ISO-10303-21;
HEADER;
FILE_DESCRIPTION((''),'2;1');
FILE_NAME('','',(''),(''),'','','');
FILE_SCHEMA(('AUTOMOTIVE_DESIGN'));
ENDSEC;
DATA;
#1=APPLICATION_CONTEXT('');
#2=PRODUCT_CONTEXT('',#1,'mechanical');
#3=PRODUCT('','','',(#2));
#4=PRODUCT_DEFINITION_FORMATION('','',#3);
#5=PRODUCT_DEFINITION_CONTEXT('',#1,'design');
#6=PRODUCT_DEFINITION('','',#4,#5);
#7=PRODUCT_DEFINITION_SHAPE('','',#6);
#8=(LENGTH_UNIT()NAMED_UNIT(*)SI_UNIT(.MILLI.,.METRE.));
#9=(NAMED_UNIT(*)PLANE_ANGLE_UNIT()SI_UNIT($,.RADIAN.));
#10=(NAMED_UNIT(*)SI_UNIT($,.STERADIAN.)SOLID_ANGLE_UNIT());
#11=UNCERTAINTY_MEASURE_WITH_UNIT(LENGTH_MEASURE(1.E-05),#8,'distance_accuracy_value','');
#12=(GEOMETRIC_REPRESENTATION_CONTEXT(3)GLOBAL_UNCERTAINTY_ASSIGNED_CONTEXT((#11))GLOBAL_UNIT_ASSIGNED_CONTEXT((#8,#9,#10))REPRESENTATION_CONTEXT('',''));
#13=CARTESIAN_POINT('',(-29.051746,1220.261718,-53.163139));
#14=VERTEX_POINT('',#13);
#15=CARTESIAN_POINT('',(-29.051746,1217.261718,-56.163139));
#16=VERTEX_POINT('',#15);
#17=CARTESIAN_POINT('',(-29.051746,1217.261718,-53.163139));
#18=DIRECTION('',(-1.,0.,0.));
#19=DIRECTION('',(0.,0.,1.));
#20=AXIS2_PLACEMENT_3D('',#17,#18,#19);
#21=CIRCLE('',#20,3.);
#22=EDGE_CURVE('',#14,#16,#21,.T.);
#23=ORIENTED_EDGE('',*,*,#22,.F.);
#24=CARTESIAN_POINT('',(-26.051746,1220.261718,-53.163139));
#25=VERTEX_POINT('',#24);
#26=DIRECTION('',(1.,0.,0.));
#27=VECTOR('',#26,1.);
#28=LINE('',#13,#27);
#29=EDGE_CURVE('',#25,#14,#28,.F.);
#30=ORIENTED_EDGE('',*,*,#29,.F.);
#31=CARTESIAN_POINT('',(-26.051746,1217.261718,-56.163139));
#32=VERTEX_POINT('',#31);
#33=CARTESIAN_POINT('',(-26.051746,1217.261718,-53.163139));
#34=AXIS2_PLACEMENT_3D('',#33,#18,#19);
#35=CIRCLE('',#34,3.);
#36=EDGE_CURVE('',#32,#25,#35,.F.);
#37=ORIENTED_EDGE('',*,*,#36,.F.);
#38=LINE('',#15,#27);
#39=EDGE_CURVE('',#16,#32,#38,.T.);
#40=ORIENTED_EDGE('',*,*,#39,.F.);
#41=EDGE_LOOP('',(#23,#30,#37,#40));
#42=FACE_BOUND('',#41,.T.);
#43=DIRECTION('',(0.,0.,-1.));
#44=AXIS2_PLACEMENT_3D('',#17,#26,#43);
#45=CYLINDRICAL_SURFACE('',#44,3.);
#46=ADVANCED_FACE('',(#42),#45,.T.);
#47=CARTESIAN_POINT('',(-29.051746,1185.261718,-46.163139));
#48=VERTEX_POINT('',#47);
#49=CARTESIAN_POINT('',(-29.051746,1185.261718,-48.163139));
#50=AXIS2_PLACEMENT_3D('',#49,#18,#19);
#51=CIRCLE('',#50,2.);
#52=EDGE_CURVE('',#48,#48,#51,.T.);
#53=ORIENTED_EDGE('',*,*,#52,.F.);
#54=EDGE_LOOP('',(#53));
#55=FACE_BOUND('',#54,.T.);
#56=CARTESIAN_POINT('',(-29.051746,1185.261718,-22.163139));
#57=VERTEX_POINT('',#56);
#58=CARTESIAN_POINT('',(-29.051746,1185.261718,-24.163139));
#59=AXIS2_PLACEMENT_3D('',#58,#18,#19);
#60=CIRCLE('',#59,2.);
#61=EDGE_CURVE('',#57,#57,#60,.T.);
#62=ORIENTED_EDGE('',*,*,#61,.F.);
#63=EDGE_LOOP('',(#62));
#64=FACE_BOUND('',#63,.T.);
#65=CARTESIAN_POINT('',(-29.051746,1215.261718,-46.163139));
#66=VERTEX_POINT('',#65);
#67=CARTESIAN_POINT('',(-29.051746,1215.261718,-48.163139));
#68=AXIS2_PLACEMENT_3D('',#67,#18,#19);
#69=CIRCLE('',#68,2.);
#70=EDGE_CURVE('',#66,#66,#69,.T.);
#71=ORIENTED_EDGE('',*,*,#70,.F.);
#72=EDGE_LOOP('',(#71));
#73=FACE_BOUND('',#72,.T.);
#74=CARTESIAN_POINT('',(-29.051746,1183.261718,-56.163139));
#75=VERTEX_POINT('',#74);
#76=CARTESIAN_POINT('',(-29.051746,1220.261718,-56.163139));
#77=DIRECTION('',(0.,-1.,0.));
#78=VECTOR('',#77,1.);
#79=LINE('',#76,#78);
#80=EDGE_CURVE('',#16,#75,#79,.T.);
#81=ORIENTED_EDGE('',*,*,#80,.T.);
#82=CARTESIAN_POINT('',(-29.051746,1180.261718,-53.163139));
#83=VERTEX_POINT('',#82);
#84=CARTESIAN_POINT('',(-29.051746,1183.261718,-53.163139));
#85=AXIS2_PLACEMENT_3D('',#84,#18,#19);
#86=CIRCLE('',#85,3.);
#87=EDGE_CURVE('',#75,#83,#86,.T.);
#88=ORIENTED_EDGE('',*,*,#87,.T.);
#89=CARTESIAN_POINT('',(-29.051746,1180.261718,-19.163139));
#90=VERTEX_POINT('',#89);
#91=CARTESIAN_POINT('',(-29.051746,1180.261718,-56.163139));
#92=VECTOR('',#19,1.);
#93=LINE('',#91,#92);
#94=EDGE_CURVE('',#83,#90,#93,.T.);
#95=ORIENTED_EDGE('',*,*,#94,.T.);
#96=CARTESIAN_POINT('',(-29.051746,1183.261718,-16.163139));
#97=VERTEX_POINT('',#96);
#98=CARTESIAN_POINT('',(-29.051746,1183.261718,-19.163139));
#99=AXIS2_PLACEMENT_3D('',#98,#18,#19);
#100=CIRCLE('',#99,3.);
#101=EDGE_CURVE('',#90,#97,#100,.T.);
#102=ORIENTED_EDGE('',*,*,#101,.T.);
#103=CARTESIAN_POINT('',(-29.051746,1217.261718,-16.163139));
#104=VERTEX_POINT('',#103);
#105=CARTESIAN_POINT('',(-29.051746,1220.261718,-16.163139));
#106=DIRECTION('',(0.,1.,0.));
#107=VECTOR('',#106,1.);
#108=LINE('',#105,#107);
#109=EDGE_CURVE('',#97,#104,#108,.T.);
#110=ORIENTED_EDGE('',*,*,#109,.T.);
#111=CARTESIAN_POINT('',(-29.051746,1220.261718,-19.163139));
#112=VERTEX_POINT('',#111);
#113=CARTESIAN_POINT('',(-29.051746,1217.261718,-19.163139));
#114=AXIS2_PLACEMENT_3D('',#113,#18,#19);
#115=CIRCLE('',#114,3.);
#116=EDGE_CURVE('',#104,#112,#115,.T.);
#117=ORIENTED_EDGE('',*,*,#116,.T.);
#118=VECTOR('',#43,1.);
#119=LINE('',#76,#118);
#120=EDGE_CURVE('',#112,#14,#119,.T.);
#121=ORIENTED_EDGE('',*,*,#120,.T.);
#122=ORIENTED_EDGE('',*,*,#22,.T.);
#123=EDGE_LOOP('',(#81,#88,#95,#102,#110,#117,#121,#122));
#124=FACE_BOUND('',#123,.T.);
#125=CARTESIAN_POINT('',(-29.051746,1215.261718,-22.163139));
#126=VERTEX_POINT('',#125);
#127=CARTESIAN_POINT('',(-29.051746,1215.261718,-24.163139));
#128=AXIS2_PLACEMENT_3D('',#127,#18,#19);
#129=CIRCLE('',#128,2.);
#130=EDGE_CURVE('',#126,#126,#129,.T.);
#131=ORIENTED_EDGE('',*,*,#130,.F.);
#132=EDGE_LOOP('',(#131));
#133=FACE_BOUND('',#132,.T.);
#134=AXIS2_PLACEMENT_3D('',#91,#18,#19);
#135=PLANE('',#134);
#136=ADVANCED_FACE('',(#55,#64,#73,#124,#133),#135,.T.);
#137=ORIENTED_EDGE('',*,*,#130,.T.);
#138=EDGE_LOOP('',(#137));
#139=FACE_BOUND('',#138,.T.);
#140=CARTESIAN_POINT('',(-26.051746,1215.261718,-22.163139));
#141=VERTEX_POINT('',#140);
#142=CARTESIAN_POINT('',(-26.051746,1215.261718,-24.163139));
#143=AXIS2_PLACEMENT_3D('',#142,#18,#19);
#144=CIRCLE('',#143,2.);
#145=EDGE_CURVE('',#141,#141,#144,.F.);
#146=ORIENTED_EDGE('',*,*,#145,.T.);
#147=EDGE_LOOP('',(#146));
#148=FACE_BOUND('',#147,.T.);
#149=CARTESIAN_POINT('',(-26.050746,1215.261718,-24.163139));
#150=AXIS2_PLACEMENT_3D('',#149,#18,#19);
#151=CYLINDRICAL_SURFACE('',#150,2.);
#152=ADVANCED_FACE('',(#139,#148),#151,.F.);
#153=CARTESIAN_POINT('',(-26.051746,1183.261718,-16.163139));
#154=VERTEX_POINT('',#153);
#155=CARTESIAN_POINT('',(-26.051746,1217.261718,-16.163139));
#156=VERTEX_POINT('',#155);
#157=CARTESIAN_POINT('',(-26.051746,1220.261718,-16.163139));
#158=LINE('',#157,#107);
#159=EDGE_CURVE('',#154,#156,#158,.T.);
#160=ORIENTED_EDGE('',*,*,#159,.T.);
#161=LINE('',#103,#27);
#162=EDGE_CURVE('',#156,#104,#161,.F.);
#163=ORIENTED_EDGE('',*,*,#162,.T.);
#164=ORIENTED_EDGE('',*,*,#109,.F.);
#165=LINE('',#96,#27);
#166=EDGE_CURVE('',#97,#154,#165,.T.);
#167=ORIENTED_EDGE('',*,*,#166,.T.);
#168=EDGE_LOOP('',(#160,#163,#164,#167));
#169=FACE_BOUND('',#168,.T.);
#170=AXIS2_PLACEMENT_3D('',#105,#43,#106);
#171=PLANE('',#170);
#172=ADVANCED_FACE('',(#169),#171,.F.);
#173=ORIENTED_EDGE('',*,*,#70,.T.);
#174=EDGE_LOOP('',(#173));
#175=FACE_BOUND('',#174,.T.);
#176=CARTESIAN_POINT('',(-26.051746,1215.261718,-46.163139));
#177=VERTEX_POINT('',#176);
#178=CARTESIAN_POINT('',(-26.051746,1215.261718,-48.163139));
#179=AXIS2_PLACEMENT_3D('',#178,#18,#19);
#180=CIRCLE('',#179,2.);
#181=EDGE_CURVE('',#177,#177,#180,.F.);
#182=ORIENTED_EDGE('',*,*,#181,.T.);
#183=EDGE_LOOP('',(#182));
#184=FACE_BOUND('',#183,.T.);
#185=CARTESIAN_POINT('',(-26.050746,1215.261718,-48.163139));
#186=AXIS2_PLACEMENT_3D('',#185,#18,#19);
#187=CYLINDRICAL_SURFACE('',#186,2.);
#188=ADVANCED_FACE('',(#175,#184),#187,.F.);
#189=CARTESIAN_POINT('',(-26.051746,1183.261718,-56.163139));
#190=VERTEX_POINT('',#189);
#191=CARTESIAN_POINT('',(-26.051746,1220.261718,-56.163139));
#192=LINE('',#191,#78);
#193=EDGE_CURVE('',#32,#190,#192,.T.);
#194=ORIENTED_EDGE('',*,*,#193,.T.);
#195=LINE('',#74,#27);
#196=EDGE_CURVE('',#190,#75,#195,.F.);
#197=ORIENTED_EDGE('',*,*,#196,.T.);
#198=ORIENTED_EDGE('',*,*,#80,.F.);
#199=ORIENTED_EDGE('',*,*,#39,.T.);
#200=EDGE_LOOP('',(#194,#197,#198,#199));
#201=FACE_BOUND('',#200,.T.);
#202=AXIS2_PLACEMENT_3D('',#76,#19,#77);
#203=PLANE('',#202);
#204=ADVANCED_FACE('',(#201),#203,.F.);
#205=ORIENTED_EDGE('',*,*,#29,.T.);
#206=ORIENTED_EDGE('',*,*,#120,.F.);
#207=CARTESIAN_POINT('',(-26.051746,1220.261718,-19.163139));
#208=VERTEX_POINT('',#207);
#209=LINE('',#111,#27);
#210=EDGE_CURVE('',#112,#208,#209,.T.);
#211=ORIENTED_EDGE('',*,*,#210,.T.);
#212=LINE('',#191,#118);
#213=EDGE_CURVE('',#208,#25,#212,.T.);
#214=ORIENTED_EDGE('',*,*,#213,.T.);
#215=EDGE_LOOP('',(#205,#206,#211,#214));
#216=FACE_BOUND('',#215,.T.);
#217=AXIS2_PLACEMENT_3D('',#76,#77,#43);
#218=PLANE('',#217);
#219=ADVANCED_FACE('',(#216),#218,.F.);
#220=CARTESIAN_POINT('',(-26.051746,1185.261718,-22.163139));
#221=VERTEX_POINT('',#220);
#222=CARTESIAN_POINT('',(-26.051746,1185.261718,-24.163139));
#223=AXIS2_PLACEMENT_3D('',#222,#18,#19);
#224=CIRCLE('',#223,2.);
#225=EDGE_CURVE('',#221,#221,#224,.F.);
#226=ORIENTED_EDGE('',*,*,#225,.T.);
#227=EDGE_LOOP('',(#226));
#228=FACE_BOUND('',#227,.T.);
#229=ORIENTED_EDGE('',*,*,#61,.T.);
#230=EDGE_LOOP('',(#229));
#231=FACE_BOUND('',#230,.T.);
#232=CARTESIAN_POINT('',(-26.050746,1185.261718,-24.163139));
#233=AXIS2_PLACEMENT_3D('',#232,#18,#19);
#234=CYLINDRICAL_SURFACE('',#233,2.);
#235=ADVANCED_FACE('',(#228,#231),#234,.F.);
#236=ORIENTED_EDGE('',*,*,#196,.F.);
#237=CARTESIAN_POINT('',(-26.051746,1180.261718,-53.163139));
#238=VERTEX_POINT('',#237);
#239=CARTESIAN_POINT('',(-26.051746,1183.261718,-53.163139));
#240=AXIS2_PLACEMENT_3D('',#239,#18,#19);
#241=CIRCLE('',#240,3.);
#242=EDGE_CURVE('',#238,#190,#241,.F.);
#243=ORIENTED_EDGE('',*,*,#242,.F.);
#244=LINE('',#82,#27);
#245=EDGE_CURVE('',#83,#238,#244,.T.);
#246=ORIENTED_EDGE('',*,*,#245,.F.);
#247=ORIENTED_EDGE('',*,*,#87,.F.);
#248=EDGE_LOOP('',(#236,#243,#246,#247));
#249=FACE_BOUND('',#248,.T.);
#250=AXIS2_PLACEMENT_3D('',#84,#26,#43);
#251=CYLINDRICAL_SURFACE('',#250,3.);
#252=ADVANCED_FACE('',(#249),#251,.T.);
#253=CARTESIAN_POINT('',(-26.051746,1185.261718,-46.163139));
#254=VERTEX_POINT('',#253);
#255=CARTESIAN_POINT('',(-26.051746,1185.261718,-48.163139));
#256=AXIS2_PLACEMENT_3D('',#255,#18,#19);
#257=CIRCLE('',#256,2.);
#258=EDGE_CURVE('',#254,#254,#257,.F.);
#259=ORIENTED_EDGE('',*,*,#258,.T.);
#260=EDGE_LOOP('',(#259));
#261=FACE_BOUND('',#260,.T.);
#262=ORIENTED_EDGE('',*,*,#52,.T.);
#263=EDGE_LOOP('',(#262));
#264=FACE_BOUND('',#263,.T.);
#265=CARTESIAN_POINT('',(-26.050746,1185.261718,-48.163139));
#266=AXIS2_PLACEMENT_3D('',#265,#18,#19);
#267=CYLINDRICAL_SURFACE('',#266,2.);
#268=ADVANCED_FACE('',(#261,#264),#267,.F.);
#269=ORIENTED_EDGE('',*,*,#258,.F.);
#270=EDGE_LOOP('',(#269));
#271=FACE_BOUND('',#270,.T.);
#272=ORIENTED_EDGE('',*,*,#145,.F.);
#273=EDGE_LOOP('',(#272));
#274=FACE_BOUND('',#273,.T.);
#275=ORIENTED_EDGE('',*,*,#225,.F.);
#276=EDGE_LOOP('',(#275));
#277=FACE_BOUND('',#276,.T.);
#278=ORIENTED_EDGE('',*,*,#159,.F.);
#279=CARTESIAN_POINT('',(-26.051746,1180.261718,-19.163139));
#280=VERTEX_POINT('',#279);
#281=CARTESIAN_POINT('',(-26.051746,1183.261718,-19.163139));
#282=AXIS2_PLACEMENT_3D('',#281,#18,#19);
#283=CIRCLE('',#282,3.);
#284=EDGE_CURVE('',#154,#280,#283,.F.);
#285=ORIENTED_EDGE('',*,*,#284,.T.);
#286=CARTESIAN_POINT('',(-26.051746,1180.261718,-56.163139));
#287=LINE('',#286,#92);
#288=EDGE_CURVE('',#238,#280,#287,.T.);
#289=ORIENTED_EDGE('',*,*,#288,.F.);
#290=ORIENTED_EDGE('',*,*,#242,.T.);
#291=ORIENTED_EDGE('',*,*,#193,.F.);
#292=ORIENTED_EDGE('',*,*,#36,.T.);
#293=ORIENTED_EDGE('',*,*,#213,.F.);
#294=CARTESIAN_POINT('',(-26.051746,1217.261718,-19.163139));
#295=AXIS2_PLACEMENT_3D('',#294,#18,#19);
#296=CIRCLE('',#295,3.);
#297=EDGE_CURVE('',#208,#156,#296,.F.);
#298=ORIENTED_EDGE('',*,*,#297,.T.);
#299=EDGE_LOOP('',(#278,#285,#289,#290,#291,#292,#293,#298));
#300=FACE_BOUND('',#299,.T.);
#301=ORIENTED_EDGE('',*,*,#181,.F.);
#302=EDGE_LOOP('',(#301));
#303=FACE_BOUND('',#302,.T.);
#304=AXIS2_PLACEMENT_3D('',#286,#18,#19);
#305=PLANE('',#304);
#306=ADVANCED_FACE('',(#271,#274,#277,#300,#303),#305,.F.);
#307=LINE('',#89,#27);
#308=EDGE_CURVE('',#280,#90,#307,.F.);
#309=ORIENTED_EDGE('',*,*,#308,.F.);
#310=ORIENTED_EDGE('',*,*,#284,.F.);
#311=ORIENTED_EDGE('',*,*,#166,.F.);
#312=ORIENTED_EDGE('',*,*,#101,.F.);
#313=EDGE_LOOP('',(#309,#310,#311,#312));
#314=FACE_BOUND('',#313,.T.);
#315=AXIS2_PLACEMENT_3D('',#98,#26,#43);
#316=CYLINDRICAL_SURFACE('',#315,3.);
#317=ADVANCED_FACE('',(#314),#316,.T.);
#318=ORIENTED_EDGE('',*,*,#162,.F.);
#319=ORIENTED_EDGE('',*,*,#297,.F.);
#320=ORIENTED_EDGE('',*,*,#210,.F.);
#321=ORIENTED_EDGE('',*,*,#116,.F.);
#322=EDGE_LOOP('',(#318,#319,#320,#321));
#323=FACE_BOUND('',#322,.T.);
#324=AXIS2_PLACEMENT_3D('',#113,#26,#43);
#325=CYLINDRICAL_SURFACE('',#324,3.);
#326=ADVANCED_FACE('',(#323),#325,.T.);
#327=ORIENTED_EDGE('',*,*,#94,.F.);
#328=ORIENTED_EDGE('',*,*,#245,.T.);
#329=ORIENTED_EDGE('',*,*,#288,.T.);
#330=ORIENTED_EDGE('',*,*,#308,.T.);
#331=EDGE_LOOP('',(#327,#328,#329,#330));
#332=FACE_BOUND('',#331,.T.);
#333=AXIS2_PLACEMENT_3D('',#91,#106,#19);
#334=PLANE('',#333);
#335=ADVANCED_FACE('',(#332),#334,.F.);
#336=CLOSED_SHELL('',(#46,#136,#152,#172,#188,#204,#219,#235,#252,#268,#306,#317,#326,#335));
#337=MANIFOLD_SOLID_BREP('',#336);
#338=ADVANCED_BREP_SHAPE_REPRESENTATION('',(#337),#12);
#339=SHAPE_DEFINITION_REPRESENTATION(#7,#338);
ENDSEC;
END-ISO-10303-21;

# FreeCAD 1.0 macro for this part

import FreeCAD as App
import Part
import Sketcher
from FreeCAD import Vector
Q = App.Units.Quantity


def edges_at(feature, points):
    """Names of the edges that pass closest to the given points."""
    edges = feature.Shape.Edges
    near = lambda p: min(range(len(edges)), key=lambda i: edges[i].distToShape(Part.Vertex(*p))[0])
    return sorted({f"Edge{near(p) + 1}" for p in points})

doc = App.newDocument("Part")
body = doc.addObject("PartDesign::Body", "Body")

sketch1 = body.newObject("Sketcher::SketchObject", "Sketch")
sketch1.AttachmentSupport = (doc.getObject("YZ_Plane"), [""])
sketch1.MapMode = "FlatFace"
sketch1.AttachmentOffset = App.Placement(Vector(0, 0, -26.051746), App.Rotation())
sketch1.addGeometry([
    Part.LineSegment(Vector(1220.261718, -56.163139, 0), Vector(1180.261718, -56.163139, 0)),
    Part.LineSegment(Vector(1180.261718, -56.163139, 0), Vector(1180.261718, -16.163139, 0)),
    Part.LineSegment(Vector(1180.261718, -16.163139, 0), Vector(1220.261718, -16.163139, 0)),
    Part.LineSegment(Vector(1220.261718, -16.163139, 0), Vector(1220.261718, -56.163139, 0)),
], False)
sketch1.addConstraint([
    Sketcher.Constraint("Coincident", 0, 2, 1, 1),
    Sketcher.Constraint("Coincident", 1, 2, 2, 1),
    Sketcher.Constraint("Coincident", 2, 2, 3, 1),
    Sketcher.Constraint("Coincident", 3, 2, 0, 1),
    Sketcher.Constraint("Horizontal", 0),
    Sketcher.Constraint("Vertical", 1),
    Sketcher.Constraint("Horizontal", 2),
    Sketcher.Constraint("Vertical", 3),
    Sketcher.Constraint("Equal", 2, 1),
    Sketcher.Constraint("DistanceX", 0, 2, 0, 1, Q("40 mm")),
    Sketcher.Constraint("DistanceY", 0, 2, -1, 1, Q("56.163139 mm")),
    Sketcher.Constraint("DistanceX", -1, 1, 0, 2, Q("1180.261718 mm")),
])
pad1 = body.newObject("PartDesign::Pad", "Pad")
pad1.Profile = sketch1
pad1.Length = 3
pad1.Reversed = True
doc.recompute()

fillet = body.newObject("PartDesign::Fillet", "Fillet")
fillet.Base = (pad1, edges_at(pad1, [
    (-27.552, 1220.262, -56.163),
    (-27.552, 1220.262, -16.163),
    (-27.552, 1180.262, -16.163),
    (-27.552, 1180.262, -56.163),
]))
fillet.Radius = 3

sketch2 = body.newObject("Sketcher::SketchObject", "Sketch001")
sketch2.AttachmentSupport = (doc.getObject("YZ_Plane"), [""])
sketch2.MapMode = "FlatFace"
sketch2.AttachmentOffset = App.Placement(Vector(0, 0, -29.051746), App.Rotation())
sketch2.addGeometry(Part.Circle(Vector(1215.261718, -48.163139, 0), Vector(0, 0, 1), 2), False)
sketch2.addConstraint([
    Sketcher.Constraint("Diameter", 0, Q("4 mm")),
    Sketcher.Constraint("DistanceY", 0, 3, -1, 1, Q("48.163139 mm")),
    Sketcher.Constraint("DistanceX", -1, 1, 0, 3, Q("1215.261718 mm")),
])
pocket1 = body.newObject("PartDesign::Pocket", "Pocket")
pocket1.Profile = sketch2
pocket1.Type = "UpToFirst"
pocket1.Reversed = True

sketch3 = body.newObject("Sketcher::SketchObject", "Sketch002")
sketch3.AttachmentSupport = (doc.getObject("YZ_Plane"), [""])
sketch3.MapMode = "FlatFace"
sketch3.AttachmentOffset = App.Placement(Vector(0, 0, -29.051746), App.Rotation())
sketch3.addGeometry(Part.Circle(Vector(1215.261718, -24.163139, 0), Vector(0, 0, 1), 2), False)
sketch3.addConstraint([
    Sketcher.Constraint("Diameter", 0, Q("4 mm")),
    Sketcher.Constraint("DistanceY", 0, 3, -1, 1, Q("24.163139 mm")),
    Sketcher.Constraint("DistanceX", -1, 1, 0, 3, Q("1215.261718 mm")),
])
pocket2 = body.newObject("PartDesign::Pocket", "Pocket001")
pocket2.Profile = sketch3
pocket2.Type = "UpToFirst"
pocket2.Reversed = True

sketch4 = body.newObject("Sketcher::SketchObject", "Sketch003")
sketch4.AttachmentSupport = (doc.getObject("YZ_Plane"), [""])
sketch4.MapMode = "FlatFace"
sketch4.AttachmentOffset = App.Placement(Vector(0, 0, -29.051746), App.Rotation())
sketch4.addGeometry(Part.Circle(Vector(1185.261718, -24.163139, 0), Vector(0, 0, 1), 2), False)
sketch4.addConstraint([
    Sketcher.Constraint("Diameter", 0, Q("4 mm")),
    Sketcher.Constraint("DistanceY", 0, 3, -1, 1, Q("24.163139 mm")),
    Sketcher.Constraint("DistanceX", -1, 1, 0, 3, Q("1185.261718 mm")),
])
pocket3 = body.newObject("PartDesign::Pocket", "Pocket002")
pocket3.Profile = sketch4
pocket3.Type = "UpToFirst"
pocket3.Reversed = True

sketch5 = body.newObject("Sketcher::SketchObject", "Sketch004")
sketch5.AttachmentSupport = (doc.getObject("YZ_Plane"), [""])
sketch5.MapMode = "FlatFace"
sketch5.AttachmentOffset = App.Placement(Vector(0, 0, -29.051746), App.Rotation())
sketch5.addGeometry(Part.Circle(Vector(1185.261718, -48.163139, 0), Vector(0, 0, 1), 2), False)
sketch5.addConstraint([
    Sketcher.Constraint("Diameter", 0, Q("4 mm")),
    Sketcher.Constraint("DistanceY", 0, 3, -1, 1, Q("48.163139 mm")),
    Sketcher.Constraint("DistanceX", -1, 1, 0, 3, Q("1185.261718 mm")),
])
pocket4 = body.newObject("PartDesign::Pocket", "Pocket003")
pocket4.Profile = sketch5
pocket4.Type = "UpToFirst"
pocket4.Reversed = True

doc.recompute()
